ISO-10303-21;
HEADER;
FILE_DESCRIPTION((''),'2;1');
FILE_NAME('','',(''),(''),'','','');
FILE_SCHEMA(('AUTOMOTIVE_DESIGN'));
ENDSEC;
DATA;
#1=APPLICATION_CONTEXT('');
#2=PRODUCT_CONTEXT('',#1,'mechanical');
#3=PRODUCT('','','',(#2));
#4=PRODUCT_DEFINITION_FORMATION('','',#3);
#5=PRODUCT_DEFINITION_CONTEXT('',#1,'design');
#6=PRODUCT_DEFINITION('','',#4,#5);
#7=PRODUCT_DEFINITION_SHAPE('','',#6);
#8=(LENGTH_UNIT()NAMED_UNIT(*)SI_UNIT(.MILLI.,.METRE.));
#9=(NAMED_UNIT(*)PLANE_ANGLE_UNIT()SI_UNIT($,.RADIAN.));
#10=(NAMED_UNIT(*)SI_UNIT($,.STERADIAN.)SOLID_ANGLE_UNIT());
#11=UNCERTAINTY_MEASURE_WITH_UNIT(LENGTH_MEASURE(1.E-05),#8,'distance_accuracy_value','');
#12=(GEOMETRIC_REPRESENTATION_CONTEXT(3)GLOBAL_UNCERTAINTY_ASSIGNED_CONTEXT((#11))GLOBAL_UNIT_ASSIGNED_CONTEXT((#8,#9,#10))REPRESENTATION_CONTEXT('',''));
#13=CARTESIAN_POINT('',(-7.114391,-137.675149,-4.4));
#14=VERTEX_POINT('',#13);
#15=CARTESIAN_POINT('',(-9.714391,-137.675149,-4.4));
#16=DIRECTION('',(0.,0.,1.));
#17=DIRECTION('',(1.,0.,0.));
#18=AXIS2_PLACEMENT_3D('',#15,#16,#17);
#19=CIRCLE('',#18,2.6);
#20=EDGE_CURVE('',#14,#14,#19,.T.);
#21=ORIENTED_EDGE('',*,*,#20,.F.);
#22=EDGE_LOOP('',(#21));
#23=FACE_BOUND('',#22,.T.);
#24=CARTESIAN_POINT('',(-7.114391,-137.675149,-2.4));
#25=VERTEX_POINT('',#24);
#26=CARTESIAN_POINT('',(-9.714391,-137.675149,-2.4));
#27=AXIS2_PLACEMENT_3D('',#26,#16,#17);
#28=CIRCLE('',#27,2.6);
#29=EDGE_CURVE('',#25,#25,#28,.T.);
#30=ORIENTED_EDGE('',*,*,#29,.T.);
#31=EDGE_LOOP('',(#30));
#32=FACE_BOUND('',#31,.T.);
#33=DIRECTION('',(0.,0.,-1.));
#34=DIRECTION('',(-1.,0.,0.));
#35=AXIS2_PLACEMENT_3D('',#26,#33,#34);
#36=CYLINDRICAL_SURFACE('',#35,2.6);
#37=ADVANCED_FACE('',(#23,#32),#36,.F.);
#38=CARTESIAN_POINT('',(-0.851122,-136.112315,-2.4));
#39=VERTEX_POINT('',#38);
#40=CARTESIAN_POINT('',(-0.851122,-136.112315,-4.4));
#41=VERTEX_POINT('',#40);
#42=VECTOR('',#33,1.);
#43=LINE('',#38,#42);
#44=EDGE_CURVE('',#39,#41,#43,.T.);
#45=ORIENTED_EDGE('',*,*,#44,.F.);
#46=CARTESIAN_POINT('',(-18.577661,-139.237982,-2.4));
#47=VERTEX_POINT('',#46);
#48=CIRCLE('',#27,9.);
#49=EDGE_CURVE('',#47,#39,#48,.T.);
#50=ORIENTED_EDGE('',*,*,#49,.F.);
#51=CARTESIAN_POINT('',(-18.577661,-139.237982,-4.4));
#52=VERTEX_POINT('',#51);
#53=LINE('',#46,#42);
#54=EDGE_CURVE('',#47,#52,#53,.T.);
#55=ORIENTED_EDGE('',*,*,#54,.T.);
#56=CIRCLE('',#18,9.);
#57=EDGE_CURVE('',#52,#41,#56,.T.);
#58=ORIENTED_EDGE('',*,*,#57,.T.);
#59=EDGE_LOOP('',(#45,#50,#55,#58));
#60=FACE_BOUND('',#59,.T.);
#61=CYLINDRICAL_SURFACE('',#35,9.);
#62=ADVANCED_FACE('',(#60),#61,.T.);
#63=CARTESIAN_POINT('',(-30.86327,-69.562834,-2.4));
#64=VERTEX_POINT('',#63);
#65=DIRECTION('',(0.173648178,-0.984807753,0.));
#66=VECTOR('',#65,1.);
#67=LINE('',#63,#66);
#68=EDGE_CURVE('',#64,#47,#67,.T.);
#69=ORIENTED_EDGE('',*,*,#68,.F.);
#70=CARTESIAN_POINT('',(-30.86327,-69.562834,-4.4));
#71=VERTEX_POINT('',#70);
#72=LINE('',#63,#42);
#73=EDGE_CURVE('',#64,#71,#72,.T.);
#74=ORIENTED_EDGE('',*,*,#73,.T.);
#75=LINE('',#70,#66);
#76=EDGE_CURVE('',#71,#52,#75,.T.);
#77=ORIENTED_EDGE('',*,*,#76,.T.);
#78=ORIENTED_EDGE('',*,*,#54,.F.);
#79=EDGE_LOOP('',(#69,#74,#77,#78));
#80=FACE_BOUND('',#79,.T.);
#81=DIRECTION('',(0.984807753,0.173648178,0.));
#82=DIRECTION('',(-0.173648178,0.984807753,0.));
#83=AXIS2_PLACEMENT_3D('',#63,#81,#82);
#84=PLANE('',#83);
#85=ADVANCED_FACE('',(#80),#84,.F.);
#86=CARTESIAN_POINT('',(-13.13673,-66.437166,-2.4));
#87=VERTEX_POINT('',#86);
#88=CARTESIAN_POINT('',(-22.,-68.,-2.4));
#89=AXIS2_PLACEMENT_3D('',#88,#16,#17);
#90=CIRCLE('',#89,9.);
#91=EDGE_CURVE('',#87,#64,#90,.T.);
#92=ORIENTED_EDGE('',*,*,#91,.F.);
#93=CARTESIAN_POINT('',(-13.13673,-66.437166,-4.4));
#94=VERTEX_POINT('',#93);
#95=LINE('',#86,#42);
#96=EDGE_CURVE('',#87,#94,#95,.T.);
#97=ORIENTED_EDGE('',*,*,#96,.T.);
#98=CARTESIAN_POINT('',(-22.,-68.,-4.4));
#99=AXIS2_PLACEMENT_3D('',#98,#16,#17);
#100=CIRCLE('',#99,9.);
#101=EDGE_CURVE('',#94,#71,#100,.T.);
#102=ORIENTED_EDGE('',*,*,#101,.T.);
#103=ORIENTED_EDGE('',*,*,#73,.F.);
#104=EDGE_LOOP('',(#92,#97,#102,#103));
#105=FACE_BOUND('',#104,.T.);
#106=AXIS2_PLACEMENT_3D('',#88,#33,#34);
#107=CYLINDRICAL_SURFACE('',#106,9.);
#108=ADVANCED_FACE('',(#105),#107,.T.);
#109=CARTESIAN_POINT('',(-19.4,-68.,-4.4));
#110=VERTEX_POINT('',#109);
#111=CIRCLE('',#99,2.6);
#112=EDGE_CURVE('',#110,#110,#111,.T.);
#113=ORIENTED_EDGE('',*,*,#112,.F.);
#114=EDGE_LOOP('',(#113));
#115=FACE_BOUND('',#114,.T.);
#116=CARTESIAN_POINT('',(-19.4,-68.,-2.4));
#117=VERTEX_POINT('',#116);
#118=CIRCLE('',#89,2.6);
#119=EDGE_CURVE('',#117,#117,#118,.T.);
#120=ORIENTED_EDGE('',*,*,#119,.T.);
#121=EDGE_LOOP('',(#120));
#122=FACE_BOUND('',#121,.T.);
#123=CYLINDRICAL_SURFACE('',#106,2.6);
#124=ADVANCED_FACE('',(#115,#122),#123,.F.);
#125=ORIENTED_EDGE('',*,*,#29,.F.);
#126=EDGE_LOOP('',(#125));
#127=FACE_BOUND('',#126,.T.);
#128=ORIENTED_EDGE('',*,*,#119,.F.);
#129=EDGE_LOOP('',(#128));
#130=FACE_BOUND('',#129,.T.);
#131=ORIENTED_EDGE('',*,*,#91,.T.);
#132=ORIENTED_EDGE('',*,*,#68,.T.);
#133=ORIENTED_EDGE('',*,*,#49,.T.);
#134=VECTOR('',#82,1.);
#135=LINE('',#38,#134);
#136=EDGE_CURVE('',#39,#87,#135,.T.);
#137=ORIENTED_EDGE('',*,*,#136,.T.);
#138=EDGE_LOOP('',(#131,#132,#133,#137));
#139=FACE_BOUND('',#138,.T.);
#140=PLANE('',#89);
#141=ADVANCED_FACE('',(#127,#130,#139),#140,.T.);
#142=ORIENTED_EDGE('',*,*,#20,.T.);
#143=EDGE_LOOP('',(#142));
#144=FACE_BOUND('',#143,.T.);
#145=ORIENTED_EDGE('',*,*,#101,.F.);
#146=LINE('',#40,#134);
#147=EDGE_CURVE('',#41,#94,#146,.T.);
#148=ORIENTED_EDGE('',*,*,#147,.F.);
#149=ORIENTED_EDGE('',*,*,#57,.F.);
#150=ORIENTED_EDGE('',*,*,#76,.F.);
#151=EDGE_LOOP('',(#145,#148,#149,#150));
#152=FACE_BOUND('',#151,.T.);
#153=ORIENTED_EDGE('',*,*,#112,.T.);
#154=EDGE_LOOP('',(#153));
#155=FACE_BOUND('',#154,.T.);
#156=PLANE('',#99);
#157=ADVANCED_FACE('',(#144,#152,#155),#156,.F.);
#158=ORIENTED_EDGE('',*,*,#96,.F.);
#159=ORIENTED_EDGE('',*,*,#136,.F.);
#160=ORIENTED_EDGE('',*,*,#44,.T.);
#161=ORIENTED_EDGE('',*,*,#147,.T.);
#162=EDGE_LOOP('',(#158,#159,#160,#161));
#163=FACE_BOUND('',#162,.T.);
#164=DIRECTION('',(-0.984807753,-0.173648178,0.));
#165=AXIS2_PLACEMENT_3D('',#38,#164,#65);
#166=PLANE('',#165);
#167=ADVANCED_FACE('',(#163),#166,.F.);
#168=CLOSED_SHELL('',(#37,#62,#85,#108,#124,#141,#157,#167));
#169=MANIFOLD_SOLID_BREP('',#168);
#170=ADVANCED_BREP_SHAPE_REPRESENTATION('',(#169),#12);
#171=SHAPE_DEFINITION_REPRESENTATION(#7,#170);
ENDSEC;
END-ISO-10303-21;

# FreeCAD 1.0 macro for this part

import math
import FreeCAD as App
import Part
import Sketcher
from FreeCAD import Vector
Q = App.Units.Quantity

doc = App.newDocument("Part")
params = doc.addObject("Spreadsheet::Sheet", "Params")
for row, (alias, value) in enumerate([
    ("sketch1_radius", "9 mm"),
    ("sketch1_diameter", "5.2 mm"),
    ("sketch1_length", "70.75 mm"),
    ("pad1_length", "2 mm"),
], start=1):
    params.set(f"A{row}", alias)
    params.set(f"B{row}", "=" + value)
    params.setAlias(f"B{row}", alias)

body = doc.addObject("PartDesign::Body", "Body")

# Sketch on XY plane
sketch1 = doc.addObject("Sketcher::SketchObject", "Sketch")
body.addObject(sketch1)
sketch1.AttachmentSupport = (doc.XY_Plane, [""])
sketch1.MapMode = "FlatFace"
sketch1.AttachmentOffset = App.Placement(Vector(0, 0, -4.4), App.Rotation())
sketch1.addGeometry(Part.LineSegment(Vector(-30.9, -69.6, 0), Vector(-18.6, -139.2, 0)), False)
sketch1.addGeometry(Part.ArcOfCircle(Part.Circle(Vector(-9.7, -137.7, 0), Vector(0, 0, 1), 9), math.radians(-170), math.radians(10)), False)
sketch1.addGeometry(Part.LineSegment(Vector(-0.9, -136.1, 0), Vector(-13.1, -66.4, 0)), False)
sketch1.addGeometry(Part.ArcOfCircle(Part.Circle(Vector(-22, -68, 0), Vector(0, 0, 1), 9), math.radians(10), math.radians(190)), False)
sketch1.addGeometry(Part.Circle(Vector(-9.7, -137.7, 0), Vector(0, 0, 1), 2.6), False)
sketch1.addGeometry(Part.Circle(Vector(-22, -68, 0), Vector(0, 0, 1), 2.6), False)
sketch1.addConstraint(Sketcher.Constraint("Tangent", 0, 2, 1, 1))
sketch1.addConstraint(Sketcher.Constraint("Tangent", 1, 2, 2, 1))
sketch1.addConstraint(Sketcher.Constraint("Tangent", 2, 2, 3, 1))
sketch1.addConstraint(Sketcher.Constraint("Tangent", 3, 2, 0, 1))
sketch1.addConstraint(Sketcher.Constraint("Coincident", 4, 3, 1, 3))
sketch1.addConstraint(Sketcher.Constraint("Coincident", 5, 3, 3, 3))
sketch1.addConstraint(Sketcher.Constraint("Equal", 1, 3))
sketch1.addConstraint(Sketcher.Constraint("Equal", 4, 5))
sketch1.addConstraint(Sketcher.Constraint("Radius", 1, Q("9 mm")))
sketch1.addConstraint(Sketcher.Constraint("Diameter", 4, Q("5.2 mm")))
sketch1.addConstraint(Sketcher.Constraint("Angle", 0, Q("-80 deg")))
sketch1.addConstraint(Sketcher.Constraint("DistanceX", 3, 3, -1, 1, Q("22 mm")))
sketch1.addConstraint(Sketcher.Constraint("DistanceY", 3, 3, -1, 1, Q("68 mm")))
sketch1.addConstraint(Sketcher.Constraint("Distance", 0, Q("70.75 mm")))
sketch1.setExpression("Constraints[8]", "Params.sketch1_radius")
sketch1.setExpression("Constraints[9]", "Params.sketch1_diameter")
sketch1.setExpression("Constraints[13]", "Params.sketch1_length")
pad1 = doc.addObject("PartDesign::Pad", "Pad")
body.addObject(pad1)
pad1.Profile = sketch1
pad1.setExpression("Length", "Params.pad1_length")

doc.recompute()
